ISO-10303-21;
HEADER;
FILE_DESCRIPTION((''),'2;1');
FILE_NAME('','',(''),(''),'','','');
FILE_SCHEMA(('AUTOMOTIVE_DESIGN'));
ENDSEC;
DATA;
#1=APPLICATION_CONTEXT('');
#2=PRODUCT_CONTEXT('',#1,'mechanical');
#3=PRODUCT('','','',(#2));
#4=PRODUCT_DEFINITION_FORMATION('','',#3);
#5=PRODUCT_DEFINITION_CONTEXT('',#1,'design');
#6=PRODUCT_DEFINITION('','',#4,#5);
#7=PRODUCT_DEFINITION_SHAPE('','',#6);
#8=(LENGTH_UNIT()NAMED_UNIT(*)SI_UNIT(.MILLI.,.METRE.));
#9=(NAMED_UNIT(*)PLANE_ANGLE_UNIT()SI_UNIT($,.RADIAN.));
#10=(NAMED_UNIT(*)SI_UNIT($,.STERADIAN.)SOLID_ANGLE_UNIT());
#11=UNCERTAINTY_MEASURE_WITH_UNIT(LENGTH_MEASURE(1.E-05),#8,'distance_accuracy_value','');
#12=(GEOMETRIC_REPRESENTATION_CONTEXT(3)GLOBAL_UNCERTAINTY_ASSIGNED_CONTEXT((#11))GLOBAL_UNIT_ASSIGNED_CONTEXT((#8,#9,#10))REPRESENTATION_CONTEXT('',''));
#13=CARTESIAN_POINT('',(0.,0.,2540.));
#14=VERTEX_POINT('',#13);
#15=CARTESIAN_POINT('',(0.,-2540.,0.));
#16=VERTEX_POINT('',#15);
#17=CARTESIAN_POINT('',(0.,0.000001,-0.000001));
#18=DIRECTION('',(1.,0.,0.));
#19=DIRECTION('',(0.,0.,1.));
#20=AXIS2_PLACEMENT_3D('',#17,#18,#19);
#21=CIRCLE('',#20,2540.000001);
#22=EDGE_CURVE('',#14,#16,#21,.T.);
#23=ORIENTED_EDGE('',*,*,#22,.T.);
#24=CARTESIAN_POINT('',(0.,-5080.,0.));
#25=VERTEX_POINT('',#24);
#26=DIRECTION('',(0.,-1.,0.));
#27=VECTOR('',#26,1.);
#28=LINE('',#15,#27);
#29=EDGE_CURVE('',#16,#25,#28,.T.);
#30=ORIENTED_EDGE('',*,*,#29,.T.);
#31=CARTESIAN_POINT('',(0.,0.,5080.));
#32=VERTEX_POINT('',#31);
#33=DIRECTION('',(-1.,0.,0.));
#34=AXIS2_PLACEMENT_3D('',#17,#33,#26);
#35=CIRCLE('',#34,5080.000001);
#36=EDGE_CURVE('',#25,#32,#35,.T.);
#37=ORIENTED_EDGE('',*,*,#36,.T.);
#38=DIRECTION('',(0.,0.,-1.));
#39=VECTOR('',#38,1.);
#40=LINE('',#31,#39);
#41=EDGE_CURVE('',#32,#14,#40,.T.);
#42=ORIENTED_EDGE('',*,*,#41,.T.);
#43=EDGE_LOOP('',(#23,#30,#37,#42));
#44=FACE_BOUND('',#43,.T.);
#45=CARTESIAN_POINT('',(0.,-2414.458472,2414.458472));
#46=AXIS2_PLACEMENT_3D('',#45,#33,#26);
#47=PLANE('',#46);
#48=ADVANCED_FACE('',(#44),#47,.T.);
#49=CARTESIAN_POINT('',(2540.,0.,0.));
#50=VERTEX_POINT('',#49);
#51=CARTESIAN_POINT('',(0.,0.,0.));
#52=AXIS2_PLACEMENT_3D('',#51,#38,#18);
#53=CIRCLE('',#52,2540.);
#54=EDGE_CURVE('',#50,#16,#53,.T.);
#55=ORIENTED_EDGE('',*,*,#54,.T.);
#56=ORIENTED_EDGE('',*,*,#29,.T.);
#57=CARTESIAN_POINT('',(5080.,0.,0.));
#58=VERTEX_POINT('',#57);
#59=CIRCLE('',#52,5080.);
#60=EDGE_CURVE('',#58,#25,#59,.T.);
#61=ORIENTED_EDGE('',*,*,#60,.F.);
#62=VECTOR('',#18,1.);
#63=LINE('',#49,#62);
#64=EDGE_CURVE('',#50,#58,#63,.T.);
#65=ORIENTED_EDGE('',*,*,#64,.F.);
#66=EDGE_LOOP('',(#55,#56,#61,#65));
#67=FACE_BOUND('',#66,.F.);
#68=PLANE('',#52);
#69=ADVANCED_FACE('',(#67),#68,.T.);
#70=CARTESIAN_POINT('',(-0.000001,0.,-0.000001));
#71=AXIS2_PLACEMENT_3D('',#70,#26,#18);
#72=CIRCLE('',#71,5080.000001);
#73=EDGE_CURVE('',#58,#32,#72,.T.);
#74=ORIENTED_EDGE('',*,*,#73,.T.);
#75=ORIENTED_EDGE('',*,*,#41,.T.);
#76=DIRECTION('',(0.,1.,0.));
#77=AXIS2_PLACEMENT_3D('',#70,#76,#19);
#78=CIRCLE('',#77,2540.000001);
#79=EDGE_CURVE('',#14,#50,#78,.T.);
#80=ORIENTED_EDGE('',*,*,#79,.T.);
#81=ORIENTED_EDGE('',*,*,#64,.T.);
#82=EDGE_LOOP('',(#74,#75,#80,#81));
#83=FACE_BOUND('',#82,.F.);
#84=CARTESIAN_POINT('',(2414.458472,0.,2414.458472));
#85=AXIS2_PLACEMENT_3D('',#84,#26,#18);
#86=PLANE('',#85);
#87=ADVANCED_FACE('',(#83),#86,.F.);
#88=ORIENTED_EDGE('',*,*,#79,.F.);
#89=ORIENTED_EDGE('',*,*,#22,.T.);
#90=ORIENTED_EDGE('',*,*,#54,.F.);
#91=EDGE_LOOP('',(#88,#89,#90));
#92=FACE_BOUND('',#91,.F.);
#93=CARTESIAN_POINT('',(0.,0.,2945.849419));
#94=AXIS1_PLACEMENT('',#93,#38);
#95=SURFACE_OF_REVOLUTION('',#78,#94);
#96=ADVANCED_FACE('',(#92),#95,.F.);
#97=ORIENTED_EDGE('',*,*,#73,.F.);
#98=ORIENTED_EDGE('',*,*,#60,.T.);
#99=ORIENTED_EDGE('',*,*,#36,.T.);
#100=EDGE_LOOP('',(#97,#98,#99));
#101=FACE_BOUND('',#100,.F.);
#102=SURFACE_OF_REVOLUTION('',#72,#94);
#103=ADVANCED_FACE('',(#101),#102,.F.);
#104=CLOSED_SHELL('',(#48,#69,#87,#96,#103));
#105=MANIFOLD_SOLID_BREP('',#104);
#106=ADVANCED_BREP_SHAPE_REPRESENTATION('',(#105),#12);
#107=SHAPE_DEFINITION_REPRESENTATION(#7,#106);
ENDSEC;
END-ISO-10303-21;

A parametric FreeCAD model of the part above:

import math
import FreeCAD as App
import Part
import Sketcher

V = App.Vector
Q = App.Units.Quantity

doc = App.newDocument("Part")
body = doc.addObject("PartDesign::Body", "Body")

# Sketch on XZ plane
sketch1 = doc.addObject("Sketcher::SketchObject", "Sketch")
body.addObject(sketch1)
sketch1.AttachmentSupport = (doc.XZ_Plane, [""])
sketch1.MapMode = "FlatFace"
sketch1.addGeometry([
    Part.LineSegment(V(0, 5080, 0), V(0, 2540, 0)),
    Part.ArcOfCircle(Part.Circle(V(-0.000001, -0.000001, 0), V(0, 0, 1), 2540.000001), math.radians(0), math.radians(90)),
    Part.LineSegment(V(2540, 0, 0), V(5080, 0, 0)),
    Part.ArcOfCircle(Part.Circle(V(-0.000001, -0.000001, 0), V(0, 0, 1), 5080.000001), math.radians(0), math.radians(90)),
], False)
sketch1.addConstraint([
    Sketcher.Constraint("Coincident", 0, 2, 1, 2),
    Sketcher.Constraint("Coincident", 1, 1, 2, 1),
    Sketcher.Constraint("Coincident", 2, 2, 3, 1),
    Sketcher.Constraint("Coincident", 3, 2, 0, 1),
    Sketcher.Constraint("Vertical", 0),
    Sketcher.Constraint("Horizontal", 2),
    Sketcher.Constraint("Coincident", 1, 3, -1, 1),
    Sketcher.Constraint("Coincident", 3, 3, -1, 1),
    Sketcher.Constraint("PointOnObject", 0, 2, -2),
    Sketcher.Constraint("PointOnObject", 2, 2, -1),
    Sketcher.Constraint("Radius", 1, Q("100 in")),
    Sketcher.Constraint("Radius", 3, Q("200.0000001 in")),
])
revolution = doc.addObject("PartDesign::Revolution", "Revolution")
body.addObject(revolution)
revolution.Profile = sketch1
revolution.ReferenceAxis = (sketch1, ["V_Axis"])
revolution.Angle = 90
revolution.Reversed = True

doc.recompute()
